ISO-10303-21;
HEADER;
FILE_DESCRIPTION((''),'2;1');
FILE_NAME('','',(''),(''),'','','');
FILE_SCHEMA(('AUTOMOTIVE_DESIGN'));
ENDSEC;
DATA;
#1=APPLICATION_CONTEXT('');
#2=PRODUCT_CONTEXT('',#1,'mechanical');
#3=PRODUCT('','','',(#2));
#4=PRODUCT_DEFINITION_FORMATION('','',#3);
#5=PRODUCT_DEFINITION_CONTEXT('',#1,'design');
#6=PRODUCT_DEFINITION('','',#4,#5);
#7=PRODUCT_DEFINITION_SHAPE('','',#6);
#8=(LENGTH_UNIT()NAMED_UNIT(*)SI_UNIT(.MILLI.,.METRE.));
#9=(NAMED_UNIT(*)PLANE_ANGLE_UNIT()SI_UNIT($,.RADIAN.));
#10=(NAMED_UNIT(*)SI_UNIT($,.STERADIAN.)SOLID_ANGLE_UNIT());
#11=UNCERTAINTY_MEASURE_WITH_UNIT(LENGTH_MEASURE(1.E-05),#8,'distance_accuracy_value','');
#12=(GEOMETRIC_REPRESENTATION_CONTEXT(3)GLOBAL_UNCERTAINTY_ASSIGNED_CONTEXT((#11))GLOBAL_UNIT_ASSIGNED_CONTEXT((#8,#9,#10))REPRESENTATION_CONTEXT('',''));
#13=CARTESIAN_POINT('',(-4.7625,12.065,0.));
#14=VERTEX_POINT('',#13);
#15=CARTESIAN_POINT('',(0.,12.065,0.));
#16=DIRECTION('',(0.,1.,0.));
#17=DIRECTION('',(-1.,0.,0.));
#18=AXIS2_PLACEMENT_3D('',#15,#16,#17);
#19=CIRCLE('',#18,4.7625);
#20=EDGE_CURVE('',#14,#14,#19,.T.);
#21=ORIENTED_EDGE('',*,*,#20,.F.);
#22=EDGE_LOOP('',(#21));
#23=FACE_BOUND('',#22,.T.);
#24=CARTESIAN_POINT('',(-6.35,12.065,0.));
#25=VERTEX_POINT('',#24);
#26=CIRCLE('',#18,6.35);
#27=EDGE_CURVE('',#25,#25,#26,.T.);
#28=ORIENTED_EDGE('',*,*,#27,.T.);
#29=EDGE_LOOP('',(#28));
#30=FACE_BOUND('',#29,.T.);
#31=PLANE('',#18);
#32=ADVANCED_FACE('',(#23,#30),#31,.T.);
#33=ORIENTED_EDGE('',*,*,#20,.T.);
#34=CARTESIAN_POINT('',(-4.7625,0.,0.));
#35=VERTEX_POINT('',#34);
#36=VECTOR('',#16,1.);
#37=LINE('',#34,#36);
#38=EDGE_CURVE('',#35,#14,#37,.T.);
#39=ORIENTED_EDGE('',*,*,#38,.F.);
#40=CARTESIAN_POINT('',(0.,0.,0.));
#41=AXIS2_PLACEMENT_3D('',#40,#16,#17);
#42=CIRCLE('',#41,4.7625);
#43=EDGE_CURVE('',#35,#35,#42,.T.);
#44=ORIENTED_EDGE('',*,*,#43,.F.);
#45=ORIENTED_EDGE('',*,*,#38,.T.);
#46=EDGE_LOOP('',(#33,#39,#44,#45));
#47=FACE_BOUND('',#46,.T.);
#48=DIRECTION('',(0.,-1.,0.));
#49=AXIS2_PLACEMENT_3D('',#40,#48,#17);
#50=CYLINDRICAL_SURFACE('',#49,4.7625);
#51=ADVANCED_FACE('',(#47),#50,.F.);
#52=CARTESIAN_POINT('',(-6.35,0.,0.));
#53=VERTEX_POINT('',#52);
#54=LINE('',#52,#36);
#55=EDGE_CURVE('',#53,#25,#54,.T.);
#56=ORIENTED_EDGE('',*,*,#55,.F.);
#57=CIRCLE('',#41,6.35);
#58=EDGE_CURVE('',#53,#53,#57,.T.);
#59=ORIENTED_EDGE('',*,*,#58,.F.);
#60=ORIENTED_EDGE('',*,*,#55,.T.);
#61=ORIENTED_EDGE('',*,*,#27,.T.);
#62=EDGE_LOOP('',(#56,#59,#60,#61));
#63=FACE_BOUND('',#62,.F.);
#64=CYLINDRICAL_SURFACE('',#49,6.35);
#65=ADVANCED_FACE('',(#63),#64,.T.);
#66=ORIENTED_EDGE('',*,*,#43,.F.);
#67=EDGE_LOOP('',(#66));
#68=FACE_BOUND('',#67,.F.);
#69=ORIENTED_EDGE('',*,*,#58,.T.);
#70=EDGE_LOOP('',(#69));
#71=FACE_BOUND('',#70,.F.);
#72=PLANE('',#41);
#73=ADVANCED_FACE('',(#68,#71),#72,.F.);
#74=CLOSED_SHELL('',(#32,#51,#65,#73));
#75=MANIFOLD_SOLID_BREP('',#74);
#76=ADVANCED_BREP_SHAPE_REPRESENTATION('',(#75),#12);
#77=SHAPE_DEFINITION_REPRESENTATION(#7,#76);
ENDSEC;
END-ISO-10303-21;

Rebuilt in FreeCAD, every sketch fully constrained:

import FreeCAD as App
import Part
import Sketcher
from FreeCAD import Vector
Q = App.Units.Quantity

doc = App.newDocument("Part")
body = doc.addObject("PartDesign::Body", "Body")

# Sketch on XZ plane
sketch1 = body.newObject("Sketcher::SketchObject", "Sketch")
sketch1.AttachmentSupport = (doc.getObject("XZ_Plane"), [""])
sketch1.MapMode = "FlatFace"
sketch1.addGeometry([
    Part.Circle(Vector(0, 0, 0), Vector(0, 0, 1), 6.35),
    Part.Circle(Vector(0, 0, 0), Vector(0, 0, 1), 4.7625),
], False)
sketch1.addConstraint([
    Sketcher.Constraint("Coincident", 0, 3, -1, 1),
    Sketcher.Constraint("Coincident", 1, 3, -1, 1),
    Sketcher.Constraint("Diameter", 0, Q("0.5 in")),
    Sketcher.Constraint("Diameter", 1, Q("0.375 in")),
])
pad1 = body.newObject("PartDesign::Pad", "Pad")
pad1.Profile = sketch1
pad1.Length = Q("0.475 in")
pad1.Reversed = True

doc.recompute()
